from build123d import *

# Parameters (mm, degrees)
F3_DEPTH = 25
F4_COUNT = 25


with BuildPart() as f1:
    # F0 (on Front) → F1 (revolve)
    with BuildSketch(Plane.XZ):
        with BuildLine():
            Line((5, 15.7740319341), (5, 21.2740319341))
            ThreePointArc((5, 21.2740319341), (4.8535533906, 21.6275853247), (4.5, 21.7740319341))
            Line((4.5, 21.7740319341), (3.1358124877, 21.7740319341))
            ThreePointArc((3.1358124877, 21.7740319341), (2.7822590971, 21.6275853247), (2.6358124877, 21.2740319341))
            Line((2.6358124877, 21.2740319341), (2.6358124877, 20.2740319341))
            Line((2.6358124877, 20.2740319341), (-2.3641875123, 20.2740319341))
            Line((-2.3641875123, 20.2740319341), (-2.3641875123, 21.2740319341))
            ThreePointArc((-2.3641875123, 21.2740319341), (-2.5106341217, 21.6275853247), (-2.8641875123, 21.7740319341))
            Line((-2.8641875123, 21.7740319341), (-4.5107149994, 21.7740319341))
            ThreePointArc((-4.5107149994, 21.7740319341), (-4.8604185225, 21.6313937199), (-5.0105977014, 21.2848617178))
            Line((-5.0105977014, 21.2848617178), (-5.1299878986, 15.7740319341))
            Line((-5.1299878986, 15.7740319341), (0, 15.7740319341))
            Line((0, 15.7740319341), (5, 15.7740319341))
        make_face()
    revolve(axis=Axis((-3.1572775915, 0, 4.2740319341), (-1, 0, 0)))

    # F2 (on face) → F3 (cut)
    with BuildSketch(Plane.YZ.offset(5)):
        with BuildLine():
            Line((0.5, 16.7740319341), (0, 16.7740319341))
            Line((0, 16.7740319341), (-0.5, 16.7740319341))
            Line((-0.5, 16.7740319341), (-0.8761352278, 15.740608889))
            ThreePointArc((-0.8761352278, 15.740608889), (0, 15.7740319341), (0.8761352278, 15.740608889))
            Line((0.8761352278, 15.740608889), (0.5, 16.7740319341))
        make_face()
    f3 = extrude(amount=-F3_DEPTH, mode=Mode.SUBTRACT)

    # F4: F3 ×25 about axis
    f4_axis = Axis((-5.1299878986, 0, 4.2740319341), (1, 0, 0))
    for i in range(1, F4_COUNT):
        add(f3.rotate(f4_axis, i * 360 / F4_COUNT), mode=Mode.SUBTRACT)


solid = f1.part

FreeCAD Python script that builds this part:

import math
import FreeCAD as App
import Part
import Sketcher
from FreeCAD import Vector
Q = App.Units.Quantity

doc = App.newDocument("Part")
body = doc.addObject("PartDesign::Body", "Body")

# Sketch on XZ plane
sketch1 = body.newObject("Sketcher::SketchObject", "Sketch")
sketch1.AttachmentSupport = (doc.getObject("XZ_Plane"), [""])
sketch1.MapMode = "FlatFace"
sketch1.addGeometry([
    Part.LineSegment(Vector(5, 15.774032, 0), Vector(5, 21.274032, 0)),  # 0
    Part.ArcOfCircle(Part.Circle(Vector(4.5, 21.274032, 0), Vector(0, 0, 1), 0.5), math.radians(0), math.radians(90)),  # 1
    Part.LineSegment(Vector(4.5, 21.774032, 0), Vector(3.135812, 21.774032, 0)),  # 2
    Part.ArcOfCircle(Part.Circle(Vector(3.135812, 21.274032, 0), Vector(0, 0, 1), 0.5), math.radians(90), math.radians(180)),  # 3
    Part.LineSegment(Vector(2.635812, 21.274032, 0), Vector(2.635812, 20.274032, 0)),  # 4
    Part.LineSegment(Vector(2.635812, 20.274032, 0), Vector(-2.364188, 20.274032, 0)),  # 5
    Part.LineSegment(Vector(-2.364188, 20.274032, 0), Vector(-2.364188, 21.274032, 0)),  # 6
    Part.ArcOfCircle(Part.Circle(Vector(-2.864188, 21.274032, 0), Vector(0, 0, 1), 0.5), math.radians(0), math.radians(90)),  # 7
    Part.LineSegment(Vector(-2.864188, 21.774032, 0), Vector(-4.510715, 21.774032, 0)),  # 8
    Part.ArcOfCircle(Part.Circle(Vector(-4.510715, 21.274032, 0), Vector(0, 0, 1), 0.5), math.radians(90), math.radians(178.758901)),  # 9
    Part.LineSegment(Vector(-5.010598, 21.284862, 0), Vector(-5.129988, 15.774032, 0)),  # 10
    Part.LineSegment(Vector(-5.129988, 15.774032, 0), Vector(5, 15.774032, 0)),  # 11
], False)
sketch1.addGeometry(Part.LineSegment(Vector(5, 4.274032, 0), Vector(-5.129988, 4.274032, 0)), True)  # axis
sketch1.addConstraint([
    Sketcher.Constraint("Tangent", 0, 2, 1, 1),
    Sketcher.Constraint("Tangent", 1, 2, 2, 1),
    Sketcher.Constraint("Tangent", 2, 2, 3, 1),
    Sketcher.Constraint("Tangent", 3, 2, 4, 1),
    Sketcher.Constraint("Coincident", 4, 2, 5, 1),
    Sketcher.Constraint("Coincident", 5, 2, 6, 1),
    Sketcher.Constraint("Tangent", 6, 2, 7, 1),
    Sketcher.Constraint("Tangent", 7, 2, 8, 1),
    Sketcher.Constraint("Tangent", 8, 2, 9, 1),
    Sketcher.Constraint("Tangent", 9, 2, 10, 1),
    Sketcher.Constraint("Coincident", 10, 2, 11, 1),
    Sketcher.Constraint("Coincident", 11, 2, 0, 1),
    Sketcher.Constraint("Vertical", 0),
    Sketcher.Constraint("Horizontal", 2),
    Sketcher.Constraint("Vertical", 4),
    Sketcher.Constraint("Horizontal", 5),
    Sketcher.Constraint("Vertical", 6),
    Sketcher.Constraint("Horizontal", 8),
    Sketcher.Constraint("Horizontal", 11),
    Sketcher.Constraint("Horizontal", 12),
    Sketcher.Constraint("Equal", 1, 3),
    Sketcher.Constraint("Equal", 3, 7),
    Sketcher.Constraint("Equal", 7, 9),
    Sketcher.Constraint("Horizontal", 3, 3, 7, 3),
    Sketcher.Constraint("Vertical", 11, 2, 12, 1),
    Sketcher.Constraint("Vertical", 10, 2, 12, 2),
    Sketcher.Constraint("Radius", 1, 0.5),
    Sketcher.Constraint("DistanceX", 5, 2, 5, 1, 5.0),
    Sketcher.Constraint("DistanceY", 4, 2, 4, 1, 1.0),
    Sketcher.Constraint("DistanceY", 0, 1, 0, 2, 5.5),
    Sketcher.Constraint("DistanceX", -1, 1, 0, 2, 5.0),
    Sketcher.Constraint("DistanceY", 12, 1, 4, 2, 16.0),
    Sketcher.Constraint("DistanceX", 10, 2, 5, 2, 2.7658),
    Sketcher.Constraint("DistanceX", 2, 2, 2, 1, 1.364188),
    Sketcher.Constraint("DistanceX", 8, 2, 8, 1, 1.646527),
    Sketcher.Constraint("DistanceY", -1, 1, 1, 3, 21.274032),
])
revolution = body.newObject("PartDesign::Revolution", "Revolution")
revolution.Profile = sketch1
revolution.ReferenceAxis = (sketch1, ["Axis0"])
revolution.Angle = 360

# Sketch on YZ plane
sketch2 = body.newObject("Sketcher::SketchObject", "Sketch001")
sketch2.AttachmentSupport = (doc.getObject("YZ_Plane"), [""])
sketch2.MapMode = "FlatFace"
sketch2.AttachmentOffset = App.Placement(Vector(0, 0, 5), App.Rotation())
sketch2.addGeometry([
    Part.LineSegment(Vector(0.5, 16.774032, 0), Vector(-0.5, 16.774032, 0)),
    Part.LineSegment(Vector(-0.5, 16.774032, 0), Vector(-0.876135, 15.740609, 0)),
    Part.ArcOfCircle(Part.Circle(Vector(0, 4.274032, 0), Vector(0, 0, 1), 11.5), math.radians(85.630649), math.radians(94.369351)),
    Part.LineSegment(Vector(0.876135, 15.740609, 0), Vector(0.5, 16.774032, 0)),
], False)
sketch2.addConstraint([
    Sketcher.Constraint("Coincident", 0, 2, 1, 1),
    Sketcher.Constraint("Coincident", 1, 2, 2, 2),
    Sketcher.Constraint("Coincident", 2, 1, 3, 1),
    Sketcher.Constraint("Coincident", 3, 2, 0, 1),
    Sketcher.Constraint("Horizontal", 0),
    Sketcher.Constraint("Symmetric", 1, 2, 2, 1, -2),
    Sketcher.Constraint("Equal", 1, 3),
    Sketcher.Constraint("Radius", 2, 11.5),
    Sketcher.Constraint("DistanceX", 0, 2, 0, 1, 1.0),
    Sketcher.Constraint("Angle", 1, Q("-110 deg")),
    Sketcher.Constraint("DistanceY", 2, 3, 0, 2, 12.5),
    Sketcher.Constraint("DistanceY", -1, 1, 2, 3, 4.274032),
])
pocket1 = body.newObject("PartDesign::Pocket", "Pocket")
pocket1.Profile = sketch2
pocket1.Length = 25
doc.recompute()

datumline = body.newObject("PartDesign::Line", "DatumLine")
datumline.Placement = App.Placement(Vector(0, 0, 4.274032), App.Rotation(Vector(0, 0, 1), Vector(1, 0, 0)))
polarpattern = body.newObject("PartDesign::PolarPattern", "PolarPattern")
polarpattern.Originals = [pocket1]
polarpattern.Axis = (datumline, [""])
polarpattern.Angle = 360
polarpattern.Occurrences = 25
body.Tip = polarpattern

doc.recompute()
